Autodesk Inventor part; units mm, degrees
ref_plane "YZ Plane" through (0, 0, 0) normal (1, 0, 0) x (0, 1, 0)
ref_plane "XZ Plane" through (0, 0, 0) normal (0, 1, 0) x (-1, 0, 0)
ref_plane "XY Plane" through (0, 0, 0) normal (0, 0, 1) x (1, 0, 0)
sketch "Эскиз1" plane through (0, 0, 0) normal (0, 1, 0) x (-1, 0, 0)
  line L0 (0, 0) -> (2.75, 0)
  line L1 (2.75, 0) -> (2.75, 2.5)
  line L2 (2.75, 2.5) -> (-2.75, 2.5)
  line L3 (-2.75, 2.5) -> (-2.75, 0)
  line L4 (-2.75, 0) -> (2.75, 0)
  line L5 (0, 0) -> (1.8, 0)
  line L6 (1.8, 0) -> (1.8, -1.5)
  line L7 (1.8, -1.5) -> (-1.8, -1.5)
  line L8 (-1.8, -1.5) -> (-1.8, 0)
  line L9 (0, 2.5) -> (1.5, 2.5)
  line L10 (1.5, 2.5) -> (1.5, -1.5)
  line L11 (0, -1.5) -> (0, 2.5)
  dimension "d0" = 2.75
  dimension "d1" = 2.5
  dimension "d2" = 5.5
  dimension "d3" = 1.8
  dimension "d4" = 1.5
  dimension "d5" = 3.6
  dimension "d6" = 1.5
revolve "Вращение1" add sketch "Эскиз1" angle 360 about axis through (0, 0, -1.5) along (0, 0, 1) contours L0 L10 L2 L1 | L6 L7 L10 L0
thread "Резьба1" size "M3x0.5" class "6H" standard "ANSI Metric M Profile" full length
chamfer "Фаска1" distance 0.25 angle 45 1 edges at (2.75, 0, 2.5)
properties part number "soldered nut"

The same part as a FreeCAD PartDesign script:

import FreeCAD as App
import Part
import Sketcher
Q = App.Units.Quantity


def edges_at(feature, points):
    """Names of the edges that pass closest to the given points."""
    edges = feature.Shape.Edges
    near = lambda p: min(range(len(edges)), key=lambda i: edges[i].distToShape(Part.Vertex(*p))[0])
    return sorted({f"Edge{near(p) + 1}" for p in points})

doc = App.newDocument("Part")
body = doc.addObject("PartDesign::Body", "Body")

sketch1 = body.newObject("Sketcher::SketchObject", "Sketch")
sketch1.AttachmentSupport = (doc.getObject("XZ_Plane"), [""])
sketch1.MapMode = "FlatFace"
sketch1.addGeometry([
    Part.LineSegment(App.Vector(-1.5, 2.5, 0), App.Vector(-1.5, -1.5, 0)),
    Part.LineSegment(App.Vector(-1.5, -1.5, 0), App.Vector(-1.8, -1.5, 0)),
    Part.LineSegment(App.Vector(-1.8, -1.5, 0), App.Vector(-1.8, 0, 0)),
    Part.LineSegment(App.Vector(-1.8, 0, 0), App.Vector(-2.75, 0, 0)),
    Part.LineSegment(App.Vector(-2.75, 0, 0), App.Vector(-2.75, 2.5, 0)),
    Part.LineSegment(App.Vector(-2.75, 2.5, 0), App.Vector(-1.5, 2.5, 0)),
], False)
sketch1.addConstraint([
    Sketcher.Constraint("Coincident", 0, 2, 1, 1),
    Sketcher.Constraint("Coincident", 1, 2, 2, 1),
    Sketcher.Constraint("Coincident", 2, 2, 3, 1),
    Sketcher.Constraint("Coincident", 3, 2, 4, 1),
    Sketcher.Constraint("Coincident", 4, 2, 5, 1),
    Sketcher.Constraint("Coincident", 5, 2, 0, 1),
    Sketcher.Constraint("Vertical", 0),
    Sketcher.Constraint("Horizontal", 1),
    Sketcher.Constraint("Vertical", 2),
    Sketcher.Constraint("Horizontal", 3),
    Sketcher.Constraint("Vertical", 4),
    Sketcher.Constraint("Horizontal", 5),
    Sketcher.Constraint("PointOnObject", 2, 2, -1),
    Sketcher.Constraint("DistanceY", 2, 1, 2, 2, Q("1.5 mm")),
    Sketcher.Constraint("DistanceY", 4, 1, 4, 2, Q("2.5 mm")),
    Sketcher.Constraint("DistanceX", 0, 2, -1, 1, Q("1.5 mm")),
    Sketcher.Constraint("DistanceX", 1, 2, -1, 1, Q("1.8 mm")),
    Sketcher.Constraint("DistanceX", 3, 2, -1, 1, Q("2.75 mm")),
])
revolution = body.newObject("PartDesign::Revolution", "Revolution")
revolution.Profile = sketch1
revolution.ReferenceAxis = (sketch1, ["V_Axis"])
revolution.Angle = 360
doc.recompute()

chamfer = body.newObject("PartDesign::Chamfer", "Chamfer")
chamfer.Base = (revolution, edges_at(revolution, [(2.75, 0, 2.5)]))
chamfer.Size = 0.25

doc.recompute()
